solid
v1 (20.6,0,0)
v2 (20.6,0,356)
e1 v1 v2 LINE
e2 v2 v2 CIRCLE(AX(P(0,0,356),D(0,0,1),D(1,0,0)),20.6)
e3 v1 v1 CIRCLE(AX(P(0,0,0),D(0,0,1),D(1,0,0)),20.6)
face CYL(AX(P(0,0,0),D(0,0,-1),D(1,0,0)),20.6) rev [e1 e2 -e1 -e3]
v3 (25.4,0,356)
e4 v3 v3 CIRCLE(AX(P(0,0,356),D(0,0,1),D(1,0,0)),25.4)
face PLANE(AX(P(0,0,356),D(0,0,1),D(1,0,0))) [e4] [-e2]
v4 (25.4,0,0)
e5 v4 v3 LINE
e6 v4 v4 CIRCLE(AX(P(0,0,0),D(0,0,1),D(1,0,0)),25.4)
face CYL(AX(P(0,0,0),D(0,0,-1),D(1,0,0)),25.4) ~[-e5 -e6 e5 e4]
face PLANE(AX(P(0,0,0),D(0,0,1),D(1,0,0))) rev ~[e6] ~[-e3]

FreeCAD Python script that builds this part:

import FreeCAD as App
import Part
import Sketcher
Q = App.Units.Quantity

doc = App.newDocument("Part")
body = doc.addObject("PartDesign::Body", "Body")

# Sketch on XY plane
sketch1 = body.newObject("Sketcher::SketchObject", "Sketch")
sketch1.AttachmentSupport = (doc.getObject("XY_Plane"), [""])
sketch1.MapMode = "FlatFace"
sketch1.addGeometry([
    Part.Circle(App.Vector(0, 0, 0), App.Vector(0, 0, 1), 25),
    Part.Circle(App.Vector(0, 0, 0), App.Vector(0, 0, 1), 21),
], False)
sketch1.addConstraint([
    Sketcher.Constraint("Coincident", 0, 3, -1, 1),
    Sketcher.Constraint("Coincident", 1, 3, -1, 1),
    Sketcher.Constraint("Diameter", 0, Q("50.8 mm")),
    Sketcher.Constraint("Diameter", 1, Q("41.2 mm")),
])
pad1 = body.newObject("PartDesign::Pad", "Pad")
pad1.Profile = sketch1
pad1.Length = 356

doc.recompute()
